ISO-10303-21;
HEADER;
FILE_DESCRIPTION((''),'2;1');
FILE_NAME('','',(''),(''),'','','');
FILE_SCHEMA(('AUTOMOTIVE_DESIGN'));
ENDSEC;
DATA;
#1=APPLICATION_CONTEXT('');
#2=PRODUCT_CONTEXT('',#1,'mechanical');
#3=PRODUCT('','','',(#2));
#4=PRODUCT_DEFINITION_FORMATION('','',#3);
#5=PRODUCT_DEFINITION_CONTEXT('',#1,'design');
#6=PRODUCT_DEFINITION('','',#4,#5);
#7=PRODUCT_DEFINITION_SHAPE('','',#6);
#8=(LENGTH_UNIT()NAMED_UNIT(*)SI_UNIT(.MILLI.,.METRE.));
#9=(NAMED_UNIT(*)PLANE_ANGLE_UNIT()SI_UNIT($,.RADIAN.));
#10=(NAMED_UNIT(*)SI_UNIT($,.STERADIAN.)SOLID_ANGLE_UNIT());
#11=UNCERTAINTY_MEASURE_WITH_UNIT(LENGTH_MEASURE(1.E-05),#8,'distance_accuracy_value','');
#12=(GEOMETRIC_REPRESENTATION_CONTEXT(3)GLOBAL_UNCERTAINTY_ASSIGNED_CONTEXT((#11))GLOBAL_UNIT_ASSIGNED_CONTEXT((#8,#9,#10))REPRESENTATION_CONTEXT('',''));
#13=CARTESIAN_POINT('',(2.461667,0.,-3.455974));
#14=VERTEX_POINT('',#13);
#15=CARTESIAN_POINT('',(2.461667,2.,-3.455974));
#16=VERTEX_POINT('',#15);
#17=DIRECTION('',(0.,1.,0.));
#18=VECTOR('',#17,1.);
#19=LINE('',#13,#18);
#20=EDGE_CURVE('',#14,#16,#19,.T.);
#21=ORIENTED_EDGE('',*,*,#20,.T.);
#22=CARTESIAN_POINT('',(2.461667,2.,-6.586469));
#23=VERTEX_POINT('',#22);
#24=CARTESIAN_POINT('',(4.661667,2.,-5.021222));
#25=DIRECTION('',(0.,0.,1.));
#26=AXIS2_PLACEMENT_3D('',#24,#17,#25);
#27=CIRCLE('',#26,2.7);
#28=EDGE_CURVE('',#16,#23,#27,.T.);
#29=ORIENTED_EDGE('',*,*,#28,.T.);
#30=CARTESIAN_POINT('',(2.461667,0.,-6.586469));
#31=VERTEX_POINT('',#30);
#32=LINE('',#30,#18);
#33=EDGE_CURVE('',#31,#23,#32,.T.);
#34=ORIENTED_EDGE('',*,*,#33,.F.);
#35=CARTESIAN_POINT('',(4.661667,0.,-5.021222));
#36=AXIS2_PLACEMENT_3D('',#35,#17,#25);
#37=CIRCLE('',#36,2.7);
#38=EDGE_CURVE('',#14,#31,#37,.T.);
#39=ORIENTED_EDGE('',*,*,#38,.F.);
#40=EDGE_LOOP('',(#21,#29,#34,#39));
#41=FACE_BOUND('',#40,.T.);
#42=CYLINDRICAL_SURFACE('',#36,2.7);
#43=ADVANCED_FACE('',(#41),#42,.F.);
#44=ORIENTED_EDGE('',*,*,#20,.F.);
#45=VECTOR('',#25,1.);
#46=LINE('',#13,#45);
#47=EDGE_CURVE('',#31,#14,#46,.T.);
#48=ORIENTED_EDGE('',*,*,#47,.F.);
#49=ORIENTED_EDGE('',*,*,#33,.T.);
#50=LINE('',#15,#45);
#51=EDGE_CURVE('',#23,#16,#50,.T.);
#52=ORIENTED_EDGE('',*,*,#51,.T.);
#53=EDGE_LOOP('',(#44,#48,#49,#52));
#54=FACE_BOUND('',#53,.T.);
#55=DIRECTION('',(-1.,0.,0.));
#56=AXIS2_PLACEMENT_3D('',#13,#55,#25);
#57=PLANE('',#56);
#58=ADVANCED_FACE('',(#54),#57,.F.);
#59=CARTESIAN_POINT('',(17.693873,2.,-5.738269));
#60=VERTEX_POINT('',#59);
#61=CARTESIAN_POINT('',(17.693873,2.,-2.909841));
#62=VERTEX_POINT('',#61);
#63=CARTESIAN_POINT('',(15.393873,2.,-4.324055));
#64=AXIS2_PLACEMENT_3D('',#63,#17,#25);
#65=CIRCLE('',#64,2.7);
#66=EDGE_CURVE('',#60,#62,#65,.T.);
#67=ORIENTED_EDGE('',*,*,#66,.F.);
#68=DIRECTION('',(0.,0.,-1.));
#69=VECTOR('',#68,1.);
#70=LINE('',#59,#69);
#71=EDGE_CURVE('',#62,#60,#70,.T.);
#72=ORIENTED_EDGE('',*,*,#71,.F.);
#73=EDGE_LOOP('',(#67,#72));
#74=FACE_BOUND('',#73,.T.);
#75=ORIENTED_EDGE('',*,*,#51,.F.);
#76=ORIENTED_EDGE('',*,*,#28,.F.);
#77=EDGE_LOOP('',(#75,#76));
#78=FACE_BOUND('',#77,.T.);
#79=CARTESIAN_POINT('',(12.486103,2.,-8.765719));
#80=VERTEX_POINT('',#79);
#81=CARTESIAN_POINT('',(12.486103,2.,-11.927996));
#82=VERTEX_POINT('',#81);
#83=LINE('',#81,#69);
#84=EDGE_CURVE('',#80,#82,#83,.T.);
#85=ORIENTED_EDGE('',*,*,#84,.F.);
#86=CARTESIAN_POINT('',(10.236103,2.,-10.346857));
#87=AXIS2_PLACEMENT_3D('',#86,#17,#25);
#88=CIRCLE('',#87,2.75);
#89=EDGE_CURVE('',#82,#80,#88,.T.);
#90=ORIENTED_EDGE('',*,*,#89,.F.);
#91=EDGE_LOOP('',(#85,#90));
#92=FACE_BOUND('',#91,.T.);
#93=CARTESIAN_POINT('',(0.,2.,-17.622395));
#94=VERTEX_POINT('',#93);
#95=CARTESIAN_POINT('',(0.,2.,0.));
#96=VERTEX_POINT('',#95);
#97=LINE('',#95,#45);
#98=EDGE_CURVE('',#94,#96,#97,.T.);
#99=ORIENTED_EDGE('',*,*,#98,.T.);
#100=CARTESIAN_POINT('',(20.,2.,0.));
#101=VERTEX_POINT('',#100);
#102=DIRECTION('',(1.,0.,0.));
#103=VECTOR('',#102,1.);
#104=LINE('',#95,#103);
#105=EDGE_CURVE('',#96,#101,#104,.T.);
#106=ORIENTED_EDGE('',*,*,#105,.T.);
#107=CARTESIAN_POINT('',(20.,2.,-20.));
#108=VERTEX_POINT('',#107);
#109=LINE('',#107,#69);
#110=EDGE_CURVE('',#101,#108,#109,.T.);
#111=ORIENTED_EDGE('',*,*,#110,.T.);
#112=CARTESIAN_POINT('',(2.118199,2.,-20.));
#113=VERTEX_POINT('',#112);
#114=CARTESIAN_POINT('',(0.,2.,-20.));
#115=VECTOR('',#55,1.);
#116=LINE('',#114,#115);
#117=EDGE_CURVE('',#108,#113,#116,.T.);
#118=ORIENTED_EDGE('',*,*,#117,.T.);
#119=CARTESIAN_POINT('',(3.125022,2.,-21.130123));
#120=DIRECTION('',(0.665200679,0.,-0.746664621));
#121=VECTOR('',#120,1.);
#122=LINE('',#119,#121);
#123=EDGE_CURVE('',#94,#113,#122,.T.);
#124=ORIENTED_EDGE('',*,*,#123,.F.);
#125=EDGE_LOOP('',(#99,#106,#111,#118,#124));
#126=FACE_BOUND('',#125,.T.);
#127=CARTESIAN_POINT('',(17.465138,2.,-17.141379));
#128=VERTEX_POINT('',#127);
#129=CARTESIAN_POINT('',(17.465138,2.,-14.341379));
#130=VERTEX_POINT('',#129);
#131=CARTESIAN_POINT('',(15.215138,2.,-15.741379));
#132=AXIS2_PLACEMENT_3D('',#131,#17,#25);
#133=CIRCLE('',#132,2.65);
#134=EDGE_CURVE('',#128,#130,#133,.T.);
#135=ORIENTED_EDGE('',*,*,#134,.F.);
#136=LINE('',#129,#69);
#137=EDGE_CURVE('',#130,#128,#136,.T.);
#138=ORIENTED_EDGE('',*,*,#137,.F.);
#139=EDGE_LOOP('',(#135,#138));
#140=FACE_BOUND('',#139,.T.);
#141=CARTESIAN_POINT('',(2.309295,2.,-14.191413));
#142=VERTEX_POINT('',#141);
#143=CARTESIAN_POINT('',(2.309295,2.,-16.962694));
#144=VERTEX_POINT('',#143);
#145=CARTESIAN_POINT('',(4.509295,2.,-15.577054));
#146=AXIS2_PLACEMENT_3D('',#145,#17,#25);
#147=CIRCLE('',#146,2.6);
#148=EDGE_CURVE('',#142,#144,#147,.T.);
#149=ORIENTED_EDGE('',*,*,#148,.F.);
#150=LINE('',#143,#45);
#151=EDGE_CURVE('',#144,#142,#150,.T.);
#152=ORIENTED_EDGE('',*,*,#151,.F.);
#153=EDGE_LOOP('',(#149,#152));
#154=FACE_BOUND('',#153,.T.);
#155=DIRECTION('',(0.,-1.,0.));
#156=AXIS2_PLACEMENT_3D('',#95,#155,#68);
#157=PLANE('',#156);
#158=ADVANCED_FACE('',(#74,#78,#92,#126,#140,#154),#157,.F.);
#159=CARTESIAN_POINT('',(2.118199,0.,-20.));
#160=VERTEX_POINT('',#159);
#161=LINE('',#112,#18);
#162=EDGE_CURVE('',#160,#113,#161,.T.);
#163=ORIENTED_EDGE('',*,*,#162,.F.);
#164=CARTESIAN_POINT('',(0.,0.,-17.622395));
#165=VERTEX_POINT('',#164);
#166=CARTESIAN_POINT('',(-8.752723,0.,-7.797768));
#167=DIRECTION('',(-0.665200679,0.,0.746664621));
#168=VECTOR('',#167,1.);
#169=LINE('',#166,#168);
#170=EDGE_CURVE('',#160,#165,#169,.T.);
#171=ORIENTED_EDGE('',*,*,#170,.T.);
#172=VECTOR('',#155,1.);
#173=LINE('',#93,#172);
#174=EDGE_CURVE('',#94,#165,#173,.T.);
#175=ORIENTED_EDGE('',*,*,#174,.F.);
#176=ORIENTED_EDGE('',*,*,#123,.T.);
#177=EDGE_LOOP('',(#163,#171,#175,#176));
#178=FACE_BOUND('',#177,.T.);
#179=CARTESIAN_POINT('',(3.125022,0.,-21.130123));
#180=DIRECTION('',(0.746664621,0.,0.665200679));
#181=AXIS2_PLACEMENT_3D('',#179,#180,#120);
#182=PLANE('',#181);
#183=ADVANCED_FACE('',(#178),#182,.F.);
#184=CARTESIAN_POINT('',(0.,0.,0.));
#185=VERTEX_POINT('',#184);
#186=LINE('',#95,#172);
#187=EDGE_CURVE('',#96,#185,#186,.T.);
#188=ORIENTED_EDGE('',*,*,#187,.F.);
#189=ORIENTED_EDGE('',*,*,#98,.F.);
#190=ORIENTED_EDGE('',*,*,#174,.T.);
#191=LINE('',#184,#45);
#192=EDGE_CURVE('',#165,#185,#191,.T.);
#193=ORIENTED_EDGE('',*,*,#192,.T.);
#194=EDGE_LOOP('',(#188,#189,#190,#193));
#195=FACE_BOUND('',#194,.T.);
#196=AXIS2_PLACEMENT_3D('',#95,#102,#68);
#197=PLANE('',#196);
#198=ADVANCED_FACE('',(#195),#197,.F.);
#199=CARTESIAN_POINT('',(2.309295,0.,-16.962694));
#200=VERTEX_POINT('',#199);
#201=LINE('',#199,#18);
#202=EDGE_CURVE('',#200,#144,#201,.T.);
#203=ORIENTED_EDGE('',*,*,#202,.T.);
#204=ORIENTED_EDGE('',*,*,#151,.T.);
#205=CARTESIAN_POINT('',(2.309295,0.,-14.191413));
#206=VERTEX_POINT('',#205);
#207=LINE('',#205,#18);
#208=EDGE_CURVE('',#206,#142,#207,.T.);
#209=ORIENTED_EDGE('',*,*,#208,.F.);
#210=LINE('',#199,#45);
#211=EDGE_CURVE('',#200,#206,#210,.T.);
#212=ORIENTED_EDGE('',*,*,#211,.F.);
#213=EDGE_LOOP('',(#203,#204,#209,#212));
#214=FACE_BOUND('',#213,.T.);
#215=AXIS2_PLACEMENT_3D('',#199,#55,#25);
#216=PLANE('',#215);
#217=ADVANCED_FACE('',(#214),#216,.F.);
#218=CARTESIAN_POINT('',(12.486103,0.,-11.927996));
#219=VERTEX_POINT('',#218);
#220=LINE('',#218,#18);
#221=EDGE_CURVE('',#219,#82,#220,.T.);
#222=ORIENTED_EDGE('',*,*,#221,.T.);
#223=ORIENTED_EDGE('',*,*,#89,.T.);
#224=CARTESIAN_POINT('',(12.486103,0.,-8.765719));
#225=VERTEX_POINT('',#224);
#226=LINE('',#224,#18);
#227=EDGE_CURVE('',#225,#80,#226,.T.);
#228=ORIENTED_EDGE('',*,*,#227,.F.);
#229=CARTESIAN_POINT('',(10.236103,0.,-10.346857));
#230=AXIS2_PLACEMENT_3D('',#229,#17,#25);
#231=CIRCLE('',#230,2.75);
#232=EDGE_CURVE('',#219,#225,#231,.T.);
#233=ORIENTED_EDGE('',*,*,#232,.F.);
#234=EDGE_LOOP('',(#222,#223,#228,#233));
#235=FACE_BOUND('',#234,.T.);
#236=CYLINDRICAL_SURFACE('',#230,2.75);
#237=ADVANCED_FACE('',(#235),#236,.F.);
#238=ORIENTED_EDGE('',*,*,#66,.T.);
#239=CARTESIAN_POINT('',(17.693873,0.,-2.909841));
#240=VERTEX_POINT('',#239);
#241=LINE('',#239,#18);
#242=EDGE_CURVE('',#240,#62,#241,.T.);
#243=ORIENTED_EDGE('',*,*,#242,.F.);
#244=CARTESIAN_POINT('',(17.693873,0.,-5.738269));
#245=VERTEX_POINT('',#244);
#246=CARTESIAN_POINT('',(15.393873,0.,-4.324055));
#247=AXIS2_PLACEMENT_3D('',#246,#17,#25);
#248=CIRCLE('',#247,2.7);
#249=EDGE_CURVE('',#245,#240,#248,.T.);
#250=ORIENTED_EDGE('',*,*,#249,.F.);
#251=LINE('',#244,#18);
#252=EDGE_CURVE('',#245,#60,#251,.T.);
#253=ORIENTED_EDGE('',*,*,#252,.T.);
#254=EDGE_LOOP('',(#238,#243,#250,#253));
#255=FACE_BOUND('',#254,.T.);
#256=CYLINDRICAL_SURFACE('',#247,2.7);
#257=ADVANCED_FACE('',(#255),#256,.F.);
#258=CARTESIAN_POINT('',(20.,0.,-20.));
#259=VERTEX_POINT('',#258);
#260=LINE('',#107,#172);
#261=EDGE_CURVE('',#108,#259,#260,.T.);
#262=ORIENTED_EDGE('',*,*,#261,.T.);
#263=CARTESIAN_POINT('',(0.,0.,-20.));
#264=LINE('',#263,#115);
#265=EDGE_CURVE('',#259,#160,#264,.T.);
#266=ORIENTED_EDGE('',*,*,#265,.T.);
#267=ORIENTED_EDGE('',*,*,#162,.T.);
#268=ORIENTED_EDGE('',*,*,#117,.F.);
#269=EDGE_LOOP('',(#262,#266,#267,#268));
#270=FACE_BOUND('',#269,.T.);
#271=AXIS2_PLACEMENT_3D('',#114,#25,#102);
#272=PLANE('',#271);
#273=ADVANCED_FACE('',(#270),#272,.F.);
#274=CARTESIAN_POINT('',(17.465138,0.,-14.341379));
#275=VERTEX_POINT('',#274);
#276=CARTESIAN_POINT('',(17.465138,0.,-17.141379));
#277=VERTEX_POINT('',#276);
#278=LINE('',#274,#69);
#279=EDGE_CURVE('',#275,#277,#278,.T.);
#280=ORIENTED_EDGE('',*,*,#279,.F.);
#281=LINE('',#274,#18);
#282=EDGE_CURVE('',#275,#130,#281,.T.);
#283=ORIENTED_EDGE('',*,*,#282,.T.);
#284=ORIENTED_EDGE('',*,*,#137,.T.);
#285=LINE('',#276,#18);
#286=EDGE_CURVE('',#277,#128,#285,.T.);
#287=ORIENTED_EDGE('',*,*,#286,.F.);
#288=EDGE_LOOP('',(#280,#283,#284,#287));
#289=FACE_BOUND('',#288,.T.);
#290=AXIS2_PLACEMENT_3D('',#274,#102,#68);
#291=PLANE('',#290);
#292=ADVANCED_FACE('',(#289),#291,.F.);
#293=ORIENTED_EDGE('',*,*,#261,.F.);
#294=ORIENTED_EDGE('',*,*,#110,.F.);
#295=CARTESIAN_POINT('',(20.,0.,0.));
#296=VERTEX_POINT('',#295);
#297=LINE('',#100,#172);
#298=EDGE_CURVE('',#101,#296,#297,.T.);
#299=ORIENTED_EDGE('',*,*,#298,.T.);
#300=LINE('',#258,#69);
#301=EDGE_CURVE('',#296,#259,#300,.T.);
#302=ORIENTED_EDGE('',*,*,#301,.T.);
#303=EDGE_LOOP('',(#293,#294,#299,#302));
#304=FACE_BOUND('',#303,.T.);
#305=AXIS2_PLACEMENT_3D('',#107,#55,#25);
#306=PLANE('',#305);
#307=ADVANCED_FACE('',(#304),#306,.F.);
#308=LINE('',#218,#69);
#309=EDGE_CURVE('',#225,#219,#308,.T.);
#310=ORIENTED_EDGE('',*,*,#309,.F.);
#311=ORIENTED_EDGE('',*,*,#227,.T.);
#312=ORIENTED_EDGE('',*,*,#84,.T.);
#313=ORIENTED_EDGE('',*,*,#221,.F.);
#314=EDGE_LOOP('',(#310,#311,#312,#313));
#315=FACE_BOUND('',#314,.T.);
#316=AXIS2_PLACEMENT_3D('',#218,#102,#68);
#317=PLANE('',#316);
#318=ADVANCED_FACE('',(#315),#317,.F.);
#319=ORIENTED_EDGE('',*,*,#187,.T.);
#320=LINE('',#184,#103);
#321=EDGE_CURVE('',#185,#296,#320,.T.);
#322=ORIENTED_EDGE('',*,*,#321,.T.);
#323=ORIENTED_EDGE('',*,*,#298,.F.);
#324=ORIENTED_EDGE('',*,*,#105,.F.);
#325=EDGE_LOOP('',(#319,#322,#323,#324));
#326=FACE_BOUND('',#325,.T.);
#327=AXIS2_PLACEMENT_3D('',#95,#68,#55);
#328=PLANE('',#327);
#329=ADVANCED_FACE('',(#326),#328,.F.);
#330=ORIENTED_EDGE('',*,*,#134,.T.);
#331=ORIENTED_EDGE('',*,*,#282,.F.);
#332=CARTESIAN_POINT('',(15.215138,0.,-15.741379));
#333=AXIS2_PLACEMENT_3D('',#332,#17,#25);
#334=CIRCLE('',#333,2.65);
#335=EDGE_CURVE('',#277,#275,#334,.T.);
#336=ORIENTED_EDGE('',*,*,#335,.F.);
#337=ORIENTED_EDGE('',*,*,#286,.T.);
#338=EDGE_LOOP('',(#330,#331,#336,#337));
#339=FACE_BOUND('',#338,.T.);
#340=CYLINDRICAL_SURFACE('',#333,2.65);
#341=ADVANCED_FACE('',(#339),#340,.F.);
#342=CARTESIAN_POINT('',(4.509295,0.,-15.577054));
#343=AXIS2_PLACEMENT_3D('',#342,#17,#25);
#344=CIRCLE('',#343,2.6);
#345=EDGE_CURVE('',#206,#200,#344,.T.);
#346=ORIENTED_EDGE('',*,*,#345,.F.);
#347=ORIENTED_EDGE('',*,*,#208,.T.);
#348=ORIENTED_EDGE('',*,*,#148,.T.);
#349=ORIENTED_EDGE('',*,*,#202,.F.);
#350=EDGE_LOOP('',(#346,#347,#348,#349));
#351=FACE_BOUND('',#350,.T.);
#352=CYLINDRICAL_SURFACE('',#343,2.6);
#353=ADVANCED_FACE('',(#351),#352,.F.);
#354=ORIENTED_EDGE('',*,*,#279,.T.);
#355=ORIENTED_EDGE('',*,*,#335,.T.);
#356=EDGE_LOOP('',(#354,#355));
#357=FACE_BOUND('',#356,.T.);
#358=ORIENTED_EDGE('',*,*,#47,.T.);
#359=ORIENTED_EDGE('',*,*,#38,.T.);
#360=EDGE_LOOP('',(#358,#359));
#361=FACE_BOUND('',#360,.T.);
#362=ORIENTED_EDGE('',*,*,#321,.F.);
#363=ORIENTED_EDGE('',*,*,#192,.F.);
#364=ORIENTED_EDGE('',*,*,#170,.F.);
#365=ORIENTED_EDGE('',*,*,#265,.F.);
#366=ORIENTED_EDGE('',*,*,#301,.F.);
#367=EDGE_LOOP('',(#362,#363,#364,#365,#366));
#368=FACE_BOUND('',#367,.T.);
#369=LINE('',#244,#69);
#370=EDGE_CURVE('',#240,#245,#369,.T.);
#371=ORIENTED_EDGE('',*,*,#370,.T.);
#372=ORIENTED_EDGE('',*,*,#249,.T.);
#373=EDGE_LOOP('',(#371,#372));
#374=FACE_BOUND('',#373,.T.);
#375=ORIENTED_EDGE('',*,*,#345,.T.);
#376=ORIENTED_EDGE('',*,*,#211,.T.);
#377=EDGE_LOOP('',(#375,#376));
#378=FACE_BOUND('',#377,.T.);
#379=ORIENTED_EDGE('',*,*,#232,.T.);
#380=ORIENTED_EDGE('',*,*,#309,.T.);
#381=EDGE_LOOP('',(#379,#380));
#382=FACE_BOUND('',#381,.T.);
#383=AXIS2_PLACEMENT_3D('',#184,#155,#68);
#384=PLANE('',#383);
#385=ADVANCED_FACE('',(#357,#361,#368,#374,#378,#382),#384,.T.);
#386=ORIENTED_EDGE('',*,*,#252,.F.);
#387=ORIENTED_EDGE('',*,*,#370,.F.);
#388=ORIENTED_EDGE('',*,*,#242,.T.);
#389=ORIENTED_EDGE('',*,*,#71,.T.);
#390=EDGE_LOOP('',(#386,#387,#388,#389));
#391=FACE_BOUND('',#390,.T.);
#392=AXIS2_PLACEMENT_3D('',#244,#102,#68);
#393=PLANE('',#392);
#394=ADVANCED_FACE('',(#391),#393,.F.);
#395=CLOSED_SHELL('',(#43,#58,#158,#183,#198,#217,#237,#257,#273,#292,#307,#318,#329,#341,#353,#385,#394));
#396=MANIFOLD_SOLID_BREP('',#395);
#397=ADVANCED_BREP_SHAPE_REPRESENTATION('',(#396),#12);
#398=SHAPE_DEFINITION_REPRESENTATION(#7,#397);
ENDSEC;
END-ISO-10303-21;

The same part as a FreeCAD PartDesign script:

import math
import FreeCAD as App
import Part
import Sketcher


def add_polygon(sketch, points):
    """Adds a closed chain of lines whose ends are joined by coincident constraints."""
    first, n = sketch.GeometryCount, len(points)
    for a, b in zip(points, points[1:] + points[:1]):
        sketch.addGeometry(Part.LineSegment(App.Vector(*a, 0), App.Vector(*b, 0)), False)
    for i in range(n):
        sketch.addConstraint(Sketcher.Constraint("Coincident", first + i, 2, first + (i + 1) % n, 1))

doc = App.newDocument("Part")
params = doc.addObject("Spreadsheet::Sheet", "Params")
for row, (alias, value) in enumerate([
    ("sketch1_width", "20 mm"),
    ("pad1_length", "2 mm"),
    ("sketch2_radius", "2.6 mm"),
    ("sketch2_radius2", "2.7 mm"),
    ("sketch2_radius3", "2.65 mm"),
    ("sketch2_radius4", "2.75 mm"),
    ("sketch2_height", "2.8 mm"),
], start=1):
    params.set(f"A{row}", alias)
    params.set(f"B{row}", "=" + value)
    params.setAlias(f"B{row}", alias)

body = doc.addObject("PartDesign::Body", "Body")

# Sketch on XZ plane
sketch1 = body.newObject("Sketcher::SketchObject", "Sketch")
sketch1.AttachmentSupport = (doc.getObject("XZ_Plane"), [""])
sketch1.MapMode = "FlatFace"
add_polygon(sketch1, [(0, -20), (0, 0), (20, 0), (20, -20)])  # lines 0-3
sketch1.addConstraint([
    Sketcher.Constraint("Vertical", 0),
    Sketcher.Constraint("Horizontal", 1),
    Sketcher.Constraint("Vertical", 2),
    Sketcher.Constraint("Horizontal", 3),
    Sketcher.Constraint("Coincident", 0, 2, -1, 1),
    Sketcher.Constraint("Equal", 3, 0),
    Sketcher.Constraint("DistanceX", 1, 1, 1, 2, 20.0),
])
sketch1.setExpression("Constraints[10]", "Params.sketch1_width")
pad1 = body.newObject("PartDesign::Pad", "Pad")
pad1.Profile = sketch1
pad1.setExpression("Length", "Params.pad1_length")
pad1.Reversed = True

# Sketch on XZ plane
sketch2 = body.newObject("Sketcher::SketchObject", "Sketch001")
sketch2.AttachmentSupport = (doc.getObject("XZ_Plane"), [""])
sketch2.MapMode = "FlatFace"
sketch2.AttachmentOffset = App.Placement(App.Vector(0, 0, -2), App.Rotation())
sketch2.addGeometry(Part.LineSegment(App.Vector(2.3, -17, 0), App.Vector(2.3, -14.2, 0)), False)  # 0
sketch2.addGeometry(Part.ArcOfCircle(Part.Circle(App.Vector(4.5, -15.6, 0), App.Vector(0, 0, 1), 2.6), math.radians(-148), math.radians(148)), False)  # 1
sketch2.addGeometry(Part.LineSegment(App.Vector(2.5, -6.6, 0), App.Vector(2.5, -3.5, 0)), False)  # 2
sketch2.addGeometry(Part.ArcOfCircle(Part.Circle(App.Vector(4.7, -5, 0), App.Vector(0, 0, 1), 2.7), math.radians(-145), math.radians(145)), False)  # 3
sketch2.addGeometry(Part.LineSegment(App.Vector(17.5, -14.3, 0), App.Vector(17.5, -17.1, 0)), False)  # 4
sketch2.addGeometry(Part.ArcOfCircle(Part.Circle(App.Vector(15.2, -15.7, 0), App.Vector(0, 0, 1), 2.6), math.radians(32), math.radians(328)), False)  # 5
sketch2.addGeometry(Part.LineSegment(App.Vector(12.5, -8.8, 0), App.Vector(12.5, -11.9, 0)), False)  # 6
sketch2.addGeometry(Part.ArcOfCircle(Part.Circle(App.Vector(10.2, -10.3, 0), App.Vector(0, 0, 1), 2.8), math.radians(35), math.radians(325)), False)  # 7
sketch2.addGeometry(Part.LineSegment(App.Vector(17.7, -2.9, 0), App.Vector(17.7, -5.7, 0)), False)  # 8
sketch2.addGeometry(Part.ArcOfCircle(Part.Circle(App.Vector(15.4, -4.3, 0), App.Vector(0, 0, 1), 2.7), math.radians(32), math.radians(328)), False)  # 9
add_polygon(sketch2, [(-1.5, -15.9), (3.1, -21.1), (-3.4, -21.7), (-4.2, -19.8)])  # lines 10-13
sketch2.addConstraint([
    Sketcher.Constraint("Coincident", 0, 1, 1, 1),
    Sketcher.Constraint("Coincident", 1, 2, 0, 2),
    Sketcher.Constraint("Coincident", 2, 1, 3, 1),
    Sketcher.Constraint("Coincident", 3, 2, 2, 2),
    Sketcher.Constraint("Coincident", 4, 1, 5, 1),
    Sketcher.Constraint("Coincident", 5, 2, 4, 2),
    Sketcher.Constraint("Coincident", 6, 1, 7, 1),
    Sketcher.Constraint("Coincident", 7, 2, 6, 2),
    Sketcher.Constraint("Coincident", 8, 1, 9, 1),
    Sketcher.Constraint("Coincident", 9, 2, 8, 2),
    Sketcher.Constraint("Vertical", 0),
    Sketcher.Constraint("Vertical", 2),
    Sketcher.Constraint("Vertical", 4),
    Sketcher.Constraint("Vertical", 6),
    Sketcher.Constraint("Vertical", 8),
    Sketcher.Constraint("Equal", 3, 9),
    Sketcher.Constraint("Radius", 1, 2.6),
    Sketcher.Constraint("Radius", 3, 2.7),
    Sketcher.Constraint("Radius", 5, 2.65),
    Sketcher.Constraint("Radius", 7, 2.75),
    Sketcher.Constraint("DistanceY", 4, 2, 4, 1, 2.8),
    Sketcher.Constraint("DistanceX", 0, 1, 1, 3, 2.2),
    Sketcher.Constraint("DistanceX", 2, 1, 3, 3, 2.2),
    Sketcher.Constraint("DistanceX", 9, 3, 8, 1, 2.3),
    Sketcher.Constraint("DistanceX", 7, 3, 6, 1, 2.25),
    Sketcher.Constraint("DistanceY", 1, 3, 9, 3, 11.252999),
    Sketcher.Constraint("DistanceY", 11, 2, 12, 2, 1.9023),
    Sketcher.Constraint("Distance", 12, 2.064048),
    Sketcher.Constraint("DistanceY", 3, 3, -1, 1, 5.021222),
    Sketcher.Constraint("DistanceX", -1, 1, 5, 3, 15.215138),
    Sketcher.Constraint("DistanceY", 5, 3, -1, 1, 15.741379),
    Sketcher.Constraint("DistanceY", 6, 1, -1, 1, 8.765719),
    Sketcher.Constraint("DistanceY", 8, 1, -1, 1, 2.909841),
    Sketcher.Constraint("DistanceX", -1, 1, 10, 2, 3.125022),
    Sketcher.Constraint("DistanceY", 11, 2, -1, 1, 21.730849),
    Sketcher.Constraint("DistanceX", 13, 2, -1, 1, 1.51392),
    Sketcher.Constraint("DistanceX", 3, 3, 5, 3, 10.553471),
    Sketcher.Constraint("DistanceX", 7, 3, 9, 3, 5.15777),
    Sketcher.Constraint("DistanceX", 1, 3, 9, 3, 10.884578),
    Sketcher.Constraint("DistanceY", 10, 2, 0, 1, 4.167428),
    Sketcher.Constraint("DistanceX", 10, 2, 7, 3, 7.111081),
    Sketcher.Constraint("DistanceX", 11, 2, 0, 1, 5.692141),
    Sketcher.Constraint("DistanceY", 13, 2, 1, 2, 1.731659),
])
sketch2.setExpression("Constraints[20]", "Params.sketch2_radius")
sketch2.setExpression("Constraints[21]", "Params.sketch2_radius2")
sketch2.setExpression("Constraints[22]", "Params.sketch2_radius3")
sketch2.setExpression("Constraints[23]", "Params.sketch2_radius4")
sketch2.setExpression("Constraints[24]", "Params.sketch2_height")
pocket1 = body.newObject("PartDesign::Pocket", "Pocket")
pocket1.Profile = sketch2
pocket1.Type = "ThroughAll"
pocket1.Reversed = True

doc.recompute()
